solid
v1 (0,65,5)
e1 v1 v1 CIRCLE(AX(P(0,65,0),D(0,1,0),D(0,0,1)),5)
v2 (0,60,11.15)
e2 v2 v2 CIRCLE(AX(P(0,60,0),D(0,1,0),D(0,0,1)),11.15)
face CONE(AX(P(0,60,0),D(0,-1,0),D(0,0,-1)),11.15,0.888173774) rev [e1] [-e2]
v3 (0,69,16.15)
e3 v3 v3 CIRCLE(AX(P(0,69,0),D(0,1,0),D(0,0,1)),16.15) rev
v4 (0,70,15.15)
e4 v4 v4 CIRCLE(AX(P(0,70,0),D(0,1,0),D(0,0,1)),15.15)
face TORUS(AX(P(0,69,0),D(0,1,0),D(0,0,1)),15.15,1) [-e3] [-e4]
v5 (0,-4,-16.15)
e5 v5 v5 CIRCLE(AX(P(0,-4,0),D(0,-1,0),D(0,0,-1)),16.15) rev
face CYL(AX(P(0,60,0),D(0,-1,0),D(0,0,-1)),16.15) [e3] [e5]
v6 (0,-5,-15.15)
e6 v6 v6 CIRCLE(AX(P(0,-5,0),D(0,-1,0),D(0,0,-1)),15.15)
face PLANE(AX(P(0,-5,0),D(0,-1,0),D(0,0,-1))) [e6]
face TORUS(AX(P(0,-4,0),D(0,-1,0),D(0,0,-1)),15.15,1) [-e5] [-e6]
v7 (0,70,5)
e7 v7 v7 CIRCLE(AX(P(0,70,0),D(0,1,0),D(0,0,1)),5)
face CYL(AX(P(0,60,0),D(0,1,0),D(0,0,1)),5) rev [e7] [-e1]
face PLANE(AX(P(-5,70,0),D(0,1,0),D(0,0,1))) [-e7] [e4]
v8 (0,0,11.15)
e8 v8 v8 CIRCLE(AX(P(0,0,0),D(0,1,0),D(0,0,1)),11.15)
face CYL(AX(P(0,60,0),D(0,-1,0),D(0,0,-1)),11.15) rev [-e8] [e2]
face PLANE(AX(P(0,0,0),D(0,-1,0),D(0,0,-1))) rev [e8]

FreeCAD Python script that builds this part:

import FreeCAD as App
import Part
import Sketcher
from FreeCAD import Vector
Q = App.Units.Quantity


def edges_at(feature, points):
    """Names of the edges that pass closest to the given points."""
    edges = feature.Shape.Edges
    near = lambda p: min(range(len(edges)), key=lambda i: edges[i].distToShape(Part.Vertex(*p))[0])
    return sorted({f"Edge{near(p) + 1}" for p in points})


def add_polygon(sketch, points):
    """Adds a closed chain of lines whose ends are joined by coincident constraints."""
    first, n = sketch.GeometryCount, len(points)
    for a, b in zip(points, points[1:] + points[:1]):
        sketch.addGeometry(Part.LineSegment(App.Vector(*a, 0), App.Vector(*b, 0)), False)
    for i in range(n):
        sketch.addConstraint(Sketcher.Constraint("Coincident", first + i, 2, first + (i + 1) % n, 1))

doc = App.newDocument("Part")
body = doc.addObject("PartDesign::Body", "Body")

sketch1 = doc.addObject("Sketcher::SketchObject", "Sketch")
body.addObject(sketch1)
sketch1.AttachmentSupport = (doc.XZ_Plane, [""])
sketch1.MapMode = "FlatFace"
sketch1.addGeometry([
    Part.Circle(Vector(0, 0, 0), Vector(0, 0, 1), 16),
    Part.Circle(Vector(0, 0, 0), Vector(0, 0, 1), 11),
], False)
sketch1.addConstraint([
    Sketcher.Constraint("Coincident", 0, 3, -1, 1),
    Sketcher.Constraint("Coincident", 1, 3, -1, 1),
    Sketcher.Constraint("Diameter", 0, Q("32.3 mm")),
    Sketcher.Constraint("Diameter", 1, Q("22.3 mm")),
])
pad1 = doc.addObject("PartDesign::Pad", "Pad")
body.addObject(pad1)
pad1.Profile = sketch1
pad1.Length = 60
pad1.Reversed = True

sketch2 = doc.addObject("Sketcher::SketchObject", "Sketch001")
body.addObject(sketch2)
sketch2.AttachmentSupport = (doc.XZ_Plane, [""])
sketch2.MapMode = "FlatFace"
sketch2.AttachmentOffset = App.Placement(Vector(0, 0, 5), App.Rotation())
sketch2.addGeometry(Part.Circle(Vector(0, 0, 0), Vector(0, 0, 1), 16), False)
sketch2.addConstraint([
    Sketcher.Constraint("Coincident", 0, 3, -1, 1),
    Sketcher.Constraint("Diameter", 0, Q("32.3 mm")),
])
pad2 = doc.addObject("PartDesign::Pad", "Pad001")
body.addObject(pad2)
pad2.Profile = sketch2
pad2.Length = 5
pad2.Reversed = True

sketch3 = doc.addObject("Sketcher::SketchObject", "Sketch002")
body.addObject(sketch3)
sketch3.AttachmentSupport = (doc.XY_Plane, [""])
sketch3.MapMode = "FlatFace"
add_polygon(sketch3, [(-11.2, 60), (-5, 65), (-5, 70), (-16.1, 70), (-16.1, 60)])
sketch3.addConstraint([
    Sketcher.Constraint("Vertical", 1),
    Sketcher.Constraint("Horizontal", 2),
    Sketcher.Constraint("Vertical", 3),
    Sketcher.Constraint("Horizontal", 4),
    Sketcher.Constraint("Equal", 4, 1),
    Sketcher.Constraint("DistanceX", 4, 1, 4, 2, Q("5 mm")),
    Sketcher.Constraint("DistanceY", 3, 2, 3, 1, Q("10 mm")),
    Sketcher.Constraint("DistanceX", 0, 2, -1, 1, Q("5 mm")),
    Sketcher.Constraint("DistanceY", -1, 1, 0, 2, Q("65 mm")),
    Sketcher.Constraint("DistanceX", 2, 2, 2, 1, Q("11.15 mm")),
])
revolution = doc.addObject("PartDesign::Revolution", "Revolution")
body.addObject(revolution)
revolution.Profile = sketch3
revolution.ReferenceAxis = (sketch3, ["V_Axis"])
revolution.Angle = 360
doc.recompute()

fillet = doc.addObject("PartDesign::Fillet", "Fillet")
body.addObject(fillet)
fillet.Base = (revolution, edges_at(revolution, [(0, 70, -16.15), (0, -5, 16.15)]))
fillet.Radius = 1

doc.recompute()
